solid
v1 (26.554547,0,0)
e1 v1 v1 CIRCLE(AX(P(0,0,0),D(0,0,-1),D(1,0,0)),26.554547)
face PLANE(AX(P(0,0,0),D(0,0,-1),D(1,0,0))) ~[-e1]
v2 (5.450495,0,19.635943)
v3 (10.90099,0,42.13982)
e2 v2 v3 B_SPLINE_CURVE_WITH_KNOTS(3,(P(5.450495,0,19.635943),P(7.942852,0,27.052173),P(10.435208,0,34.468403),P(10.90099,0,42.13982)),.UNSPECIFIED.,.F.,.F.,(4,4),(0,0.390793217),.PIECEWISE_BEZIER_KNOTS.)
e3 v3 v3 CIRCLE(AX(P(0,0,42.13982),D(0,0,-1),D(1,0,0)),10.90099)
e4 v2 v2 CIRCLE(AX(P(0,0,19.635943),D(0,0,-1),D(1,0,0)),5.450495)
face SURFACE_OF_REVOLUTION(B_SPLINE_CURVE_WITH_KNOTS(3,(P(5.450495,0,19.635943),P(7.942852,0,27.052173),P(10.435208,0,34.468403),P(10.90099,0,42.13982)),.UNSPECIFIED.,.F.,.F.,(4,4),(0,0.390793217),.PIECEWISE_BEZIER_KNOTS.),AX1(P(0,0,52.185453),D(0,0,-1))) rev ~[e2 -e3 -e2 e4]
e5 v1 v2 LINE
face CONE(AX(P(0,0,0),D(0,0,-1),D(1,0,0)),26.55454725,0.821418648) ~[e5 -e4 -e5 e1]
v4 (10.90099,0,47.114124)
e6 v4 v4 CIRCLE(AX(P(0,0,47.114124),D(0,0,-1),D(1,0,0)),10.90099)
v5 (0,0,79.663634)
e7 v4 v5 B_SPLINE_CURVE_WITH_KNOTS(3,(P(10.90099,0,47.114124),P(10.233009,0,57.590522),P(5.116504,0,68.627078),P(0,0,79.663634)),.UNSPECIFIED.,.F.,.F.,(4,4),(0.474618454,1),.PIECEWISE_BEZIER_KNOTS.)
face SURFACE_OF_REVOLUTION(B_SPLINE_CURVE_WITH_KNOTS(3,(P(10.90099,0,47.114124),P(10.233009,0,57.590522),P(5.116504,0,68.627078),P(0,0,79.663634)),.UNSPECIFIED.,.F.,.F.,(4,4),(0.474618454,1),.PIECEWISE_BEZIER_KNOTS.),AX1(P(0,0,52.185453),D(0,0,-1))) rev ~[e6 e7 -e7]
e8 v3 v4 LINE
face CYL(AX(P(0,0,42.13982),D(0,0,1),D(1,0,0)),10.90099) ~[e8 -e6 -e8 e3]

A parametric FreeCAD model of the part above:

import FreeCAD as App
import Part
import Sketcher

V = App.Vector
Q = App.Units.Quantity

doc = App.newDocument("Part")
body = doc.addObject("PartDesign::Body", "Body")

sketch1 = body.newObject("Sketcher::SketchObject", "Sketch")
sketch1.AttachmentSupport = (doc.getObject("XZ_Plane"), [""])
sketch1.MapMode = "FlatFace"
sketch1.addGeometry(Part.LineSegment(V(0, 79.663634, 0), V(0, 0, 0)), False)
sketch1.addGeometry(Part.LineSegment(V(0, 0, 0), V(26.554547, 0, 0)), False)
sketch1.addGeometry(Part.LineSegment(V(26.554547, 0, 0), V(5.450495, 19.635943, 0)), False)
sketch1.addGeometry(Part.BSplineCurve([V(5.450495, 19.635943, 0), V(7.942852, 27.052173, 0), V(10.435208, 34.468403, 0), V(10.90099, 42.13982, 0)], [4, 4], [0, 0.390793217], False, 3, [1, 1, 1, 1], False), False)
sketch1.addGeometry(Part.LineSegment(V(10.90099, 42.13982, 0), V(10.90099, 47.114124, 0)), False)
sketch1.addGeometry(Part.BSplineCurve([V(10.90099, 47.114124, 0), V(10.233009, 57.590522, 0), V(5.116504, 68.627078, 0), V(0, 79.663634, 0)], [4, 4], [0.474618454, 1], False, 3, [1, 1, 1, 1], False), False)
sketch1.addConstraint(Sketcher.Constraint("Block", 3))
sketch1.addConstraint(Sketcher.Constraint("Block", 5))
sketch1.addConstraint(Sketcher.Constraint("Coincident", 0, 2, 1, 1))
sketch1.addConstraint(Sketcher.Constraint("Coincident", 1, 2, 2, 1))
sketch1.addConstraint(Sketcher.Constraint("Coincident", 2, 2, 3, 1))
sketch1.addConstraint(Sketcher.Constraint("Coincident", 3, 2, 4, 1))
sketch1.addConstraint(Sketcher.Constraint("Coincident", 4, 2, 5, 1))
sketch1.addConstraint(Sketcher.Constraint("Coincident", 5, 2, 0, 1))
sketch1.addConstraint(Sketcher.Constraint("Vertical", 0))
sketch1.addConstraint(Sketcher.Constraint("Horizontal", 1))
sketch1.addConstraint(Sketcher.Constraint("PointOnObject", 1, 2, -1))
sketch1.addConstraint(Sketcher.Constraint("DistanceX", 1, 1, 1, 2, Q("26.554547 mm")))
revolution = body.newObject("PartDesign::Revolution", "Revolution")
revolution.Profile = sketch1
revolution.ReferenceAxis = (sketch1, ["V_Axis"])
revolution.Angle = 360

doc.recompute()
